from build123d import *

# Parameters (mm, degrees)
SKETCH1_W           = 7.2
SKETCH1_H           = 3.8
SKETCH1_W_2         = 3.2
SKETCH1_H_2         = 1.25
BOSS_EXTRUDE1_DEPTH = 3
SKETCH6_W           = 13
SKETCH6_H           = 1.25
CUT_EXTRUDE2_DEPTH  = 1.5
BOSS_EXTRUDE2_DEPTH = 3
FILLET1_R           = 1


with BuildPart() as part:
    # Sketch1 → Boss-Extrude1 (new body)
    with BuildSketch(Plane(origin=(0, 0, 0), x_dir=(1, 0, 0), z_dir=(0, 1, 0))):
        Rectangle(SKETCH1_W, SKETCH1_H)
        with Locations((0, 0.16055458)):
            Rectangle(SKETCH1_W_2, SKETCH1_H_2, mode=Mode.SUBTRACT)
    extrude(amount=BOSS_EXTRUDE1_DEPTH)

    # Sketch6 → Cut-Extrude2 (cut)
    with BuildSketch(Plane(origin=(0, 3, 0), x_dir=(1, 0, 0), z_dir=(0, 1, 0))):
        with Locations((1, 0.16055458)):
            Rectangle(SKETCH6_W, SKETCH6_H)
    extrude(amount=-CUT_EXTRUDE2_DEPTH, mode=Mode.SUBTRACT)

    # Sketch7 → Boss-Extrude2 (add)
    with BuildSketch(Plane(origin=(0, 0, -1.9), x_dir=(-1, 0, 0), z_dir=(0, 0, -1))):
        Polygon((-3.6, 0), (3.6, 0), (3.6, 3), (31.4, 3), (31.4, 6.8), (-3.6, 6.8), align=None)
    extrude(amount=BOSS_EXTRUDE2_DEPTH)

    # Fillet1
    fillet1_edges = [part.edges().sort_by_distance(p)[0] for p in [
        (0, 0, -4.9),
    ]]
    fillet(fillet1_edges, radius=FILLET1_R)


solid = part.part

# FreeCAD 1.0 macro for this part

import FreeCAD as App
import Part
import Sketcher


def edges_at(feature, points):
    """Names of the edges that pass closest to the given points."""
    edges = feature.Shape.Edges
    near = lambda p: min(range(len(edges)), key=lambda i: edges[i].distToShape(Part.Vertex(*p))[0])
    return sorted({f"Edge{near(p) + 1}" for p in points})

doc = App.newDocument("Part")
body = doc.addObject("PartDesign::Body", "Body")

# Sketch on XZ plane
sketch1 = body.newObject("Sketcher::SketchObject", "Sketch")
sketch1.AttachmentSupport = (doc.getObject("XZ_Plane"), [""])
sketch1.MapMode = "FlatFace"
sketch1.addGeometry([
    Part.LineSegment(App.Vector(-3.6, -1.9, 0), App.Vector(-3.6, 1.9, 0)),  # 0
    Part.LineSegment(App.Vector(-3.6, 1.9, 0), App.Vector(3.6, 1.9, 0)),  # 1
    Part.LineSegment(App.Vector(3.6, 1.9, 0), App.Vector(3.6, -1.9, 0)),  # 2
    Part.LineSegment(App.Vector(3.6, -1.9, 0), App.Vector(-3.6, -1.9, 0)),  # 3
    Part.LineSegment(App.Vector(1.6, 0.5, 0), App.Vector(-1.6, 0.5, 0)),  # 4
    Part.LineSegment(App.Vector(-1.6, 0.5, 0), App.Vector(-1.6, -0.8, 0)),  # 5
    Part.LineSegment(App.Vector(-1.6, -0.8, 0), App.Vector(1.6, -0.8, 0)),  # 6
    Part.LineSegment(App.Vector(1.6, -0.8, 0), App.Vector(1.6, 0.5, 0)),  # 7
], False)
sketch1.addConstraint([
    Sketcher.Constraint("Coincident", 0, 2, 1, 1),
    Sketcher.Constraint("Coincident", 1, 2, 2, 1),
    Sketcher.Constraint("Coincident", 2, 2, 3, 1),
    Sketcher.Constraint("Coincident", 3, 2, 0, 1),
    Sketcher.Constraint("Coincident", 4, 2, 5, 1),
    Sketcher.Constraint("Coincident", 5, 2, 6, 1),
    Sketcher.Constraint("Coincident", 6, 2, 7, 1),
    Sketcher.Constraint("Coincident", 7, 2, 4, 1),
    Sketcher.Constraint("Vertical", 0),
    Sketcher.Constraint("Horizontal", 1),
    Sketcher.Constraint("Vertical", 2),
    Sketcher.Constraint("Horizontal", 3),
    Sketcher.Constraint("Horizontal", 4),
    Sketcher.Constraint("Vertical", 5),
    Sketcher.Constraint("Horizontal", 6),
    Sketcher.Constraint("Vertical", 7),
    Sketcher.Constraint("Symmetric", 0, 2, 2, 2, -1, 1),
    Sketcher.Constraint("DistanceX", 1, 1, 1, 2, 7.2),
    Sketcher.Constraint("DistanceX", 4, 2, 4, 1, 3.2),
    Sketcher.Constraint("DistanceY", 0, 1, 0, 2, 3.8),
    Sketcher.Constraint("DistanceX", 0, 2, 4, 2, 2.0),
    Sketcher.Constraint("DistanceY", 5, 2, 5, 1, 1.25),
    Sketcher.Constraint("DistanceY", -1, 1, 4, 2, 0.464445),
])
pad1 = body.newObject("PartDesign::Pad", "Pad")
pad1.Profile = sketch1
pad1.Length = 3
pad1.Reversed = True

# Sketch on XZ plane
sketch2 = body.newObject("Sketcher::SketchObject", "Sketch001")
sketch2.AttachmentSupport = (doc.getObject("XZ_Plane"), [""])
sketch2.MapMode = "FlatFace"
sketch2.AttachmentOffset = App.Placement(App.Vector(0, 0, -3), App.Rotation())
sketch2.addGeometry([
    Part.LineSegment(App.Vector(-5.5, -0.8, 0), App.Vector(-5.5, 0.5, 0)),
    Part.LineSegment(App.Vector(-5.5, 0.5, 0), App.Vector(7.5, 0.5, 0)),
    Part.LineSegment(App.Vector(7.5, 0.5, 0), App.Vector(7.5, -0.8, 0)),
    Part.LineSegment(App.Vector(7.5, -0.8, 0), App.Vector(-5.5, -0.8, 0)),
], False)
sketch2.addConstraint([
    Sketcher.Constraint("Coincident", 0, 2, 1, 1),
    Sketcher.Constraint("Coincident", 1, 2, 2, 1),
    Sketcher.Constraint("Coincident", 2, 2, 3, 1),
    Sketcher.Constraint("Coincident", 3, 2, 0, 1),
    Sketcher.Constraint("Vertical", 0),
    Sketcher.Constraint("Horizontal", 1),
    Sketcher.Constraint("Vertical", 2),
    Sketcher.Constraint("Horizontal", 3),
    Sketcher.Constraint("DistanceX", 1, 1, 1, 2, 13.0),
    Sketcher.Constraint("DistanceY", 0, 1, 0, 2, 1.25),
    Sketcher.Constraint("DistanceX", 0, 2, -1, 1, 5.5),
    Sketcher.Constraint("DistanceY", -1, 1, 0, 2, 0.464445),
])
pocket1 = body.newObject("PartDesign::Pocket", "Pocket")
pocket1.Profile = sketch2
pocket1.Length = 1.5
pocket1.Reversed = True

# Sketch on XY plane
sketch3 = body.newObject("Sketcher::SketchObject", "Sketch002")
sketch3.AttachmentSupport = (doc.getObject("XY_Plane"), [""])
sketch3.MapMode = "FlatFace"
sketch3.AttachmentOffset = App.Placement(App.Vector(0, 0, -1.9), App.Rotation())
sketch3.addGeometry([
    Part.LineSegment(App.Vector(3.6, 0, 0), App.Vector(-3.6, 0, 0)),  # 0
    Part.LineSegment(App.Vector(-3.6, 0, 0), App.Vector(-3.6, 3, 0)),  # 1
    Part.LineSegment(App.Vector(-3.6, 3, 0), App.Vector(-31.4, 3, 0)),  # 2
    Part.LineSegment(App.Vector(-31.4, 3, 0), App.Vector(-31.4, 6.8, 0)),  # 3
    Part.LineSegment(App.Vector(-31.4, 6.8, 0), App.Vector(3.6, 6.8, 0)),  # 4
    Part.LineSegment(App.Vector(3.6, 6.8, 0), App.Vector(3.6, 0, 0)),  # 5
], False)
sketch3.addConstraint([
    Sketcher.Constraint("Coincident", 0, 2, 1, 1),
    Sketcher.Constraint("Coincident", 1, 2, 2, 1),
    Sketcher.Constraint("Coincident", 2, 2, 3, 1),
    Sketcher.Constraint("Coincident", 3, 2, 4, 1),
    Sketcher.Constraint("Coincident", 4, 2, 5, 1),
    Sketcher.Constraint("Coincident", 5, 2, 0, 1),
    Sketcher.Constraint("Horizontal", 0),
    Sketcher.Constraint("Vertical", 1),
    Sketcher.Constraint("Horizontal", 2),
    Sketcher.Constraint("Vertical", 3),
    Sketcher.Constraint("Horizontal", 4),
    Sketcher.Constraint("Vertical", 5),
    Sketcher.Constraint("Symmetric", 0, 2, 5, 2, -1, 1),
    Sketcher.Constraint("DistanceX", 4, 1, 4, 2, 35.0),
    Sketcher.Constraint("DistanceY", 1, 1, 1, 2, 3.0),
    Sketcher.Constraint("DistanceX", 0, 2, 0, 1, 7.2),
    Sketcher.Constraint("DistanceY", 3, 1, 3, 2, 3.8),
])
pad2 = body.newObject("PartDesign::Pad", "Pad001")
pad2.Profile = sketch3
pad2.Length = 3
pad2.Reversed = True
doc.recompute()

fillet = body.newObject("PartDesign::Fillet", "Fillet")
fillet.Base = (pad2, edges_at(pad2, [(0, 0, -4.9)]))
fillet.Radius = 1

doc.recompute()
